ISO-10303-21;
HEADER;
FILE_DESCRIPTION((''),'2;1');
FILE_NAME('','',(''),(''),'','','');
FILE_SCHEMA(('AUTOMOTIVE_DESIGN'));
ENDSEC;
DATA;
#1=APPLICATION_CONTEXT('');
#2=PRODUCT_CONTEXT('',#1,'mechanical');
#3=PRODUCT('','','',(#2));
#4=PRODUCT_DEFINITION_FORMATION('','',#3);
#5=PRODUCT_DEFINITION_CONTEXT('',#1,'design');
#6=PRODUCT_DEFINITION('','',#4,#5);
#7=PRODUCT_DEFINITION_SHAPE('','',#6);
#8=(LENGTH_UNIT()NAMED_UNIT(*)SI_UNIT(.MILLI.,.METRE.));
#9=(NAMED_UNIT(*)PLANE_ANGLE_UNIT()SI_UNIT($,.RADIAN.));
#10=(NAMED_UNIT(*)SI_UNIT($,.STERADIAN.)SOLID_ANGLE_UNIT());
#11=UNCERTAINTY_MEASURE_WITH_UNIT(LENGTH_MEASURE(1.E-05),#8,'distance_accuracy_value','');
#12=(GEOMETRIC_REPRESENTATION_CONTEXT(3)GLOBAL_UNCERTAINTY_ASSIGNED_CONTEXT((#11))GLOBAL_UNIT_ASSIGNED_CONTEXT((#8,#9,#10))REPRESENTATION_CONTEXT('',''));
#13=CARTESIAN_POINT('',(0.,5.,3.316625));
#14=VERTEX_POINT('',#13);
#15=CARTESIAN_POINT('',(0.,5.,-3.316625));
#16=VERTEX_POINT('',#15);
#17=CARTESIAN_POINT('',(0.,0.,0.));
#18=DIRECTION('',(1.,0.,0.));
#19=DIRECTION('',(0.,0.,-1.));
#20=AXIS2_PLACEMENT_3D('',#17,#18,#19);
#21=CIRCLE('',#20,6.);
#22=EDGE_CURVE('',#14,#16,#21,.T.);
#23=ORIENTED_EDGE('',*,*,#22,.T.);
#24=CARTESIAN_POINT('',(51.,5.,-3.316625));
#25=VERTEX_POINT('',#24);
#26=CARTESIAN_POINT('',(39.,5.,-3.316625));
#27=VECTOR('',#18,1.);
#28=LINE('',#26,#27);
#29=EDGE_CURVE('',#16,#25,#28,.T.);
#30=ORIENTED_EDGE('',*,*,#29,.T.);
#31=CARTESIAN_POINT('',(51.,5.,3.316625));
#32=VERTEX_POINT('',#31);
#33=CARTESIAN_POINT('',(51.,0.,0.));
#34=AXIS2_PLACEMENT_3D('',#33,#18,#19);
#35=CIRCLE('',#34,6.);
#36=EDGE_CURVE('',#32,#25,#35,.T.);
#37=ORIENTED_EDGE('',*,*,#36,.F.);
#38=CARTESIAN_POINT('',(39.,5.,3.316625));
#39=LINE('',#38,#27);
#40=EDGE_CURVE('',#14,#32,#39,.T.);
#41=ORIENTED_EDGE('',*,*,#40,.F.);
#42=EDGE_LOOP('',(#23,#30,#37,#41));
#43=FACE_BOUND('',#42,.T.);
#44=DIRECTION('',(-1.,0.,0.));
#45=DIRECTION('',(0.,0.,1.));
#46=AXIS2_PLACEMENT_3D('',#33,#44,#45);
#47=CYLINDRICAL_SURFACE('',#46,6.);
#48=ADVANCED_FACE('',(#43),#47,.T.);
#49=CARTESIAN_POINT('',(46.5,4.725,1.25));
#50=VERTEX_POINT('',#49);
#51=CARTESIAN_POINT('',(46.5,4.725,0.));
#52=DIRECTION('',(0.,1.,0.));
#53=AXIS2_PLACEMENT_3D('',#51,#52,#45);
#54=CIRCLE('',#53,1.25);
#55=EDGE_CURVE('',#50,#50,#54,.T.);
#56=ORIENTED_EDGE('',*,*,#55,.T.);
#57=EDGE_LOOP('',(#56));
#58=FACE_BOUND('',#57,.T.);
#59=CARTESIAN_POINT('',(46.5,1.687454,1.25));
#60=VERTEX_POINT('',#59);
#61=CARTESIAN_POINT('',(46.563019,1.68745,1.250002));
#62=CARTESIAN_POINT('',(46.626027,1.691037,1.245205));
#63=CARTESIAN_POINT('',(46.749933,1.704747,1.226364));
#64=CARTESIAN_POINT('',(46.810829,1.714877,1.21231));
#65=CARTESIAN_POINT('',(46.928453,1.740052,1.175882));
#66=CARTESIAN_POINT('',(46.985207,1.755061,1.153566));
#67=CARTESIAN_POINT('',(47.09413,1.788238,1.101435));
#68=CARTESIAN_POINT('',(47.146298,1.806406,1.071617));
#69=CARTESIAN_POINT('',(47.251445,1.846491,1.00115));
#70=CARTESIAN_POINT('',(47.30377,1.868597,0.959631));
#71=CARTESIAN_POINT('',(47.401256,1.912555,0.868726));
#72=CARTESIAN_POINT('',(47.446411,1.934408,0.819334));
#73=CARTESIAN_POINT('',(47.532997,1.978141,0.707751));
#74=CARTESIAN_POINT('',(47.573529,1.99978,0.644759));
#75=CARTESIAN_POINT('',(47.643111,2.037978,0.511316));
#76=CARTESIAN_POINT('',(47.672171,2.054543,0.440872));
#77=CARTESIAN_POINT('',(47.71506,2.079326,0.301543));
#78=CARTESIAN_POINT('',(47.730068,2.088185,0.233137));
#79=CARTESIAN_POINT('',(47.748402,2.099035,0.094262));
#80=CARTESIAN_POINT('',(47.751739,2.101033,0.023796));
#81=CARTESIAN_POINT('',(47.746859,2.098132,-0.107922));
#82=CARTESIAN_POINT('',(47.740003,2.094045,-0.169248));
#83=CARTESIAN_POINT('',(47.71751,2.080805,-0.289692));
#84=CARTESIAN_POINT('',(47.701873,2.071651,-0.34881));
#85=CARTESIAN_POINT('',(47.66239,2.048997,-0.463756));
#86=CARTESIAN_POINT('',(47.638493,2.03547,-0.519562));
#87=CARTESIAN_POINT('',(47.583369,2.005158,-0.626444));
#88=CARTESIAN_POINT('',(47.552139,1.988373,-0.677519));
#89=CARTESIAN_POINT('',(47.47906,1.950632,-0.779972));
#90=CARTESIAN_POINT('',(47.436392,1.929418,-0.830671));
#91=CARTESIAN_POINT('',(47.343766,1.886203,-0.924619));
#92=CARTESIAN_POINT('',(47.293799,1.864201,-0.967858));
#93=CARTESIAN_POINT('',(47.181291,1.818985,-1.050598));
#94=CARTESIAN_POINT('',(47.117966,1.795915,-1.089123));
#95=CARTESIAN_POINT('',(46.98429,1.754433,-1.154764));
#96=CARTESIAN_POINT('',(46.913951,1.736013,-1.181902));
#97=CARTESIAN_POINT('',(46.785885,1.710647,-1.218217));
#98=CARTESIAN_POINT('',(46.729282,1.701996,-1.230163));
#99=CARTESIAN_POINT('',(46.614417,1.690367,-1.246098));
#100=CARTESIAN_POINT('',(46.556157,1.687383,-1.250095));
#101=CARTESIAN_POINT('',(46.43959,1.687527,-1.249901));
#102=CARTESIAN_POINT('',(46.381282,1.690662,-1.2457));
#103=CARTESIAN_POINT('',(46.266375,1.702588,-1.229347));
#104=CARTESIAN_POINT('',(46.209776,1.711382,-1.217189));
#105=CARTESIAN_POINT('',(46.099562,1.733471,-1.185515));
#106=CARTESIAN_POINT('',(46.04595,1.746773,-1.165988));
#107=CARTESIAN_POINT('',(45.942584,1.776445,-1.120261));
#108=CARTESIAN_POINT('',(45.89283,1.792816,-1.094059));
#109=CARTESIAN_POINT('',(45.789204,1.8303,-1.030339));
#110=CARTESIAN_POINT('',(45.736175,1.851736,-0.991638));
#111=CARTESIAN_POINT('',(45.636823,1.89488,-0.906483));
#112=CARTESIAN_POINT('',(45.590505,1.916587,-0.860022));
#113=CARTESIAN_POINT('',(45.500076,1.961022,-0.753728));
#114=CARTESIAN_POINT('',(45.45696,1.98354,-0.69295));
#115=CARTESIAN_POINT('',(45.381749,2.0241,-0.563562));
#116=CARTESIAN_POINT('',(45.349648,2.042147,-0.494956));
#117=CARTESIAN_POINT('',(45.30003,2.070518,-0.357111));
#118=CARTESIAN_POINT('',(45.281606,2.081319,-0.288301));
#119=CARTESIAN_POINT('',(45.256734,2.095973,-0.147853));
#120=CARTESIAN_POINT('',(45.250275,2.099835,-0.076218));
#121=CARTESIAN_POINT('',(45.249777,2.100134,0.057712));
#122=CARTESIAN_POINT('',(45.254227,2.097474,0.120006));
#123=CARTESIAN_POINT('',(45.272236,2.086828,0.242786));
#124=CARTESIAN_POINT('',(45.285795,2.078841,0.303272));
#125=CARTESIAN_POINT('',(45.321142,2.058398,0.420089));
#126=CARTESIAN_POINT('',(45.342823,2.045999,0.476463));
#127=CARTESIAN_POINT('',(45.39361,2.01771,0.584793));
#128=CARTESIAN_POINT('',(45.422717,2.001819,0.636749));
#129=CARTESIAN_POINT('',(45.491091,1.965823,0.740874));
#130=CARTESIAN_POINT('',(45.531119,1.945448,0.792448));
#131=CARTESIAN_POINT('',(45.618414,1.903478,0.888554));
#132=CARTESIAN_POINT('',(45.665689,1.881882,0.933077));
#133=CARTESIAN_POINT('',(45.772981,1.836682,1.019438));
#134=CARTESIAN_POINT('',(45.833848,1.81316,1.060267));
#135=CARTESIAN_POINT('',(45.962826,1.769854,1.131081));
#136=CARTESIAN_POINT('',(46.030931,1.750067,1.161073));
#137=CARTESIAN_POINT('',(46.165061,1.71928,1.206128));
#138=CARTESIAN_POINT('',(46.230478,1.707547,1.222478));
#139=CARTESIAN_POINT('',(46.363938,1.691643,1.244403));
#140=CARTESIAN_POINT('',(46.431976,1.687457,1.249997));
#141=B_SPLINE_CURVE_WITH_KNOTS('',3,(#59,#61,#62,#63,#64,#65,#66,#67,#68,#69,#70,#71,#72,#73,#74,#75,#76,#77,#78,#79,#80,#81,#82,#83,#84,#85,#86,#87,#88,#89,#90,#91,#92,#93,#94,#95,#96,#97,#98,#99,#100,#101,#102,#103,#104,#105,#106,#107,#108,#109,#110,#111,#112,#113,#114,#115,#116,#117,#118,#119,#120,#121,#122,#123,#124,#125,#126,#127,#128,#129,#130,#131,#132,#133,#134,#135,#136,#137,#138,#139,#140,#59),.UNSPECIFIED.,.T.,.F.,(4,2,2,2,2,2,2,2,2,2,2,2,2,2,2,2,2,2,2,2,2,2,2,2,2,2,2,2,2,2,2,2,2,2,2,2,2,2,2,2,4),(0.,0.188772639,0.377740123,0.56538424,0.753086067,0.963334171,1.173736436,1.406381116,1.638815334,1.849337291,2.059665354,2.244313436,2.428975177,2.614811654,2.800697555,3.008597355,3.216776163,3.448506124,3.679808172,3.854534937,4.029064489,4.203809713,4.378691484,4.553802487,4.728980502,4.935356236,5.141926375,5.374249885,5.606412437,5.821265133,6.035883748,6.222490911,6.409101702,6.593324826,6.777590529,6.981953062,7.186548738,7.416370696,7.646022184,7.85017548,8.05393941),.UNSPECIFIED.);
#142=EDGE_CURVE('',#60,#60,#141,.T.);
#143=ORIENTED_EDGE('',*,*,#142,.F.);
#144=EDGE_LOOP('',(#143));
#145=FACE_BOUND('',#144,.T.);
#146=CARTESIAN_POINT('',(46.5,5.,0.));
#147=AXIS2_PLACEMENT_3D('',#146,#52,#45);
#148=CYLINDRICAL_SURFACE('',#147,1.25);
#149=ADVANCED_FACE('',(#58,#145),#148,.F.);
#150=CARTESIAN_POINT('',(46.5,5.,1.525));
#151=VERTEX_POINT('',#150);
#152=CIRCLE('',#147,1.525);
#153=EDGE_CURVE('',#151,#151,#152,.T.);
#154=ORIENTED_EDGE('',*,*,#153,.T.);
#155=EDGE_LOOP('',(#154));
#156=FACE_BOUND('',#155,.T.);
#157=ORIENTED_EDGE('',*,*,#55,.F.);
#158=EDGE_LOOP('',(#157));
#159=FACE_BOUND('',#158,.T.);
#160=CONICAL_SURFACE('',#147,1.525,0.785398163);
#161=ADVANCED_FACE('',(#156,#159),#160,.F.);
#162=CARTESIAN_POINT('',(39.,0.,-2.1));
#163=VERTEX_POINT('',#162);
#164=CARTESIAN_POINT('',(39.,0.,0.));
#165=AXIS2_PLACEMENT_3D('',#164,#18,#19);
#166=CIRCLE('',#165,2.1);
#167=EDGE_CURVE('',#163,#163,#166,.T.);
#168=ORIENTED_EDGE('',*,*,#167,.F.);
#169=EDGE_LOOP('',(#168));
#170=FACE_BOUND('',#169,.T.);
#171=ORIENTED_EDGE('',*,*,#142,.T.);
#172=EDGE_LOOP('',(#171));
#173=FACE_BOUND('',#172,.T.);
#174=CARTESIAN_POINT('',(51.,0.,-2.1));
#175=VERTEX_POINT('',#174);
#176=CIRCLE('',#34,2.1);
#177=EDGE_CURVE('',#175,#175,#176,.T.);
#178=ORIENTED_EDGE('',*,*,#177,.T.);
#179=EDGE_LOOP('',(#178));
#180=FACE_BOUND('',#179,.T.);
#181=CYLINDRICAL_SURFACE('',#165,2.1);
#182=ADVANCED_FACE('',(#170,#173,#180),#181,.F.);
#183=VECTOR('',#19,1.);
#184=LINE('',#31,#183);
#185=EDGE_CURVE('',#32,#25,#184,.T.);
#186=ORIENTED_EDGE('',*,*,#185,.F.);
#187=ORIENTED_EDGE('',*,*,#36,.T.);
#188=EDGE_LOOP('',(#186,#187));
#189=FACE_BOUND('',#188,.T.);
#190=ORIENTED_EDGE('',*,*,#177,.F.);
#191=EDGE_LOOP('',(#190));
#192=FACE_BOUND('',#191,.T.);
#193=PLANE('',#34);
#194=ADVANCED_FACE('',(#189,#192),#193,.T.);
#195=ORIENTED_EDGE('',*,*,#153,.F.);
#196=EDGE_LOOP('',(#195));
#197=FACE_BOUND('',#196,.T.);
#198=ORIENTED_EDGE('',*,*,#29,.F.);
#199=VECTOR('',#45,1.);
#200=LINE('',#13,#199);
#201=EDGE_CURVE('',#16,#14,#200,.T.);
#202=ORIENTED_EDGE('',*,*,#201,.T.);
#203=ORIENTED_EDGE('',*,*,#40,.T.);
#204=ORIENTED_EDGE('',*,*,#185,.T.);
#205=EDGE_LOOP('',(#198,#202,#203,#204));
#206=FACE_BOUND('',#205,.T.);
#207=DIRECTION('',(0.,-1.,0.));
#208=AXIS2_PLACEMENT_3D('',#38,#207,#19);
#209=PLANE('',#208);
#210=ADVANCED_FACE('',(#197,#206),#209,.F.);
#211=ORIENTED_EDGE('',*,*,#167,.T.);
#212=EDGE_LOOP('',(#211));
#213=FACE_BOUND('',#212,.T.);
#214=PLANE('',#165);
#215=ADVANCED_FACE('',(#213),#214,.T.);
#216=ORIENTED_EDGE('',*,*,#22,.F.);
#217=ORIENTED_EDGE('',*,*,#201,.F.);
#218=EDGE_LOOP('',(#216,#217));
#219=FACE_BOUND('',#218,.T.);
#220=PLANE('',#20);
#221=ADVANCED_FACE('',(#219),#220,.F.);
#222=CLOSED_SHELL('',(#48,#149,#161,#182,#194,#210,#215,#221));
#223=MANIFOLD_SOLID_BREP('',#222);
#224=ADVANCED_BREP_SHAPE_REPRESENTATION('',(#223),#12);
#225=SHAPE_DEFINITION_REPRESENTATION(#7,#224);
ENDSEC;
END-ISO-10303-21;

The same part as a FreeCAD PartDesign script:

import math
import FreeCAD as App
import Part
import Sketcher

doc = App.newDocument("Part")
body = doc.addObject("PartDesign::Body", "Body")

# Sketch on YZ plane
sketch1 = doc.addObject("Sketcher::SketchObject", "Sketch")
body.addObject(sketch1)
sketch1.AttachmentSupport = (doc.YZ_Plane, [""])
sketch1.MapMode = "FlatFace"
sketch1.addGeometry(Part.Circle(App.Vector(0, 0, 0), App.Vector(0, 0, 1), 6), False)
sketch1.addConstraint([
    Sketcher.Constraint("Coincident", 0, 3, -1, 1),
    Sketcher.Constraint("Diameter", 0, 12.0),
])
pad1 = doc.addObject("PartDesign::Pad", "Pad")
body.addObject(pad1)
pad1.Profile = sketch1
pad1.Length = 51

# Sketch on YZ plane
sketch2 = doc.addObject("Sketcher::SketchObject", "Sketch001")
body.addObject(sketch2)
sketch2.AttachmentSupport = (doc.YZ_Plane, [""])
sketch2.MapMode = "FlatFace"
sketch2.AttachmentOffset = App.Placement(App.Vector(0, 0, 39), App.Rotation())
sketch2.addGeometry([
    Part.Circle(App.Vector(0, 0, 0), App.Vector(0, 0, 1), 2.1),
    Part.LineSegment(App.Vector(5, 3.3, 0), App.Vector(5, -3.3, 0)),
    Part.ArcOfCircle(Part.Circle(App.Vector(0, 0, 0), App.Vector(0, 0, 1), 6), math.radians(-34), math.radians(34)),
], False)
sketch2.addConstraint([
    Sketcher.Constraint("Coincident", 1, 1, 2, 2),
    Sketcher.Constraint("Coincident", 2, 1, 1, 2),
    Sketcher.Constraint("Vertical", 1),
    Sketcher.Constraint("Coincident", 0, 3, -1, 1),
    Sketcher.Constraint("Coincident", 2, 3, -1, 1),
    Sketcher.Constraint("Radius", 2, 6.0),
    Sketcher.Constraint("Diameter", 0, 4.2),
    Sketcher.Constraint("DistanceX", -1, 1, 1, 1, 5.0),
])
pocket1 = doc.addObject("PartDesign::Pocket", "Pocket")
body.addObject(pocket1)
pocket1.Profile = sketch2
pocket1.Length = 12
pocket1.Reversed = True

# Sketch on XZ plane
sketch3 = doc.addObject("Sketcher::SketchObject", "Sketch002")
body.addObject(sketch3)
sketch3.AttachmentSupport = (doc.XZ_Plane, [""])
sketch3.MapMode = "FlatFace"
sketch3.AttachmentOffset = App.Placement(App.Vector(0, 0, -5), App.Rotation())
sketch3.addGeometry(Part.Circle(App.Vector(46.5, 0, 0), App.Vector(0, 0, 1), 1.2), False)
sketch3.addConstraint([
    Sketcher.Constraint("PointOnObject", 0, 3, -1),
    Sketcher.Constraint("Diameter", 0, 2.5),
    Sketcher.Constraint("DistanceX", -1, 1, 0, 3, 46.5),
])
doc.recompute()
hole = doc.addObject("PartDesign::Hole", "Hole")
body.addObject(hole)
hole.Profile = sketch3
hole.ThreadType = "None"
hole.Diameter = 2.5
hole.DepthType = "Dimension"
hole.Depth = 6
hole.DrillPoint = "Angled"
hole.DrillPointAngle = 118
hole.HoleCutType = "Countersink"
hole.HoleCutDiameter = 3.05
hole.HoleCutCountersinkAngle = 90
hole.Reversed = True

# Sketch on YZ plane
sketch4 = doc.addObject("Sketcher::SketchObject", "Sketch003")
body.addObject(sketch4)
sketch4.AttachmentSupport = (doc.YZ_Plane, [""])
sketch4.MapMode = "FlatFace"
sketch4.AttachmentOffset = App.Placement(App.Vector(0, 0, 39), App.Rotation())
sketch4.addGeometry([
    Part.LineSegment(App.Vector(5, 3, 0), App.Vector(5, -3, 0)),
    Part.ArcOfCircle(Part.Circle(App.Vector(0, 0, 0), App.Vector(0, 0, 1), 6), math.radians(-34), math.radians(34)),
], False)
sketch4.addConstraint([
    Sketcher.Constraint("Coincident", 0, 1, 1, 2),
    Sketcher.Constraint("Coincident", 1, 1, 0, 2),
    Sketcher.Constraint("Vertical", 0),
    Sketcher.Constraint("Coincident", 1, 3, -1, 1),
    Sketcher.Constraint("Radius", 1, 6.0),
    Sketcher.Constraint("DistanceX", -1, 1, 0, 1, 5.0),
])
pocket2 = doc.addObject("PartDesign::Pocket", "Pocket001")
body.addObject(pocket2)
pocket2.Profile = sketch4
pocket2.Type = "UpToFirst"

doc.recompute()
